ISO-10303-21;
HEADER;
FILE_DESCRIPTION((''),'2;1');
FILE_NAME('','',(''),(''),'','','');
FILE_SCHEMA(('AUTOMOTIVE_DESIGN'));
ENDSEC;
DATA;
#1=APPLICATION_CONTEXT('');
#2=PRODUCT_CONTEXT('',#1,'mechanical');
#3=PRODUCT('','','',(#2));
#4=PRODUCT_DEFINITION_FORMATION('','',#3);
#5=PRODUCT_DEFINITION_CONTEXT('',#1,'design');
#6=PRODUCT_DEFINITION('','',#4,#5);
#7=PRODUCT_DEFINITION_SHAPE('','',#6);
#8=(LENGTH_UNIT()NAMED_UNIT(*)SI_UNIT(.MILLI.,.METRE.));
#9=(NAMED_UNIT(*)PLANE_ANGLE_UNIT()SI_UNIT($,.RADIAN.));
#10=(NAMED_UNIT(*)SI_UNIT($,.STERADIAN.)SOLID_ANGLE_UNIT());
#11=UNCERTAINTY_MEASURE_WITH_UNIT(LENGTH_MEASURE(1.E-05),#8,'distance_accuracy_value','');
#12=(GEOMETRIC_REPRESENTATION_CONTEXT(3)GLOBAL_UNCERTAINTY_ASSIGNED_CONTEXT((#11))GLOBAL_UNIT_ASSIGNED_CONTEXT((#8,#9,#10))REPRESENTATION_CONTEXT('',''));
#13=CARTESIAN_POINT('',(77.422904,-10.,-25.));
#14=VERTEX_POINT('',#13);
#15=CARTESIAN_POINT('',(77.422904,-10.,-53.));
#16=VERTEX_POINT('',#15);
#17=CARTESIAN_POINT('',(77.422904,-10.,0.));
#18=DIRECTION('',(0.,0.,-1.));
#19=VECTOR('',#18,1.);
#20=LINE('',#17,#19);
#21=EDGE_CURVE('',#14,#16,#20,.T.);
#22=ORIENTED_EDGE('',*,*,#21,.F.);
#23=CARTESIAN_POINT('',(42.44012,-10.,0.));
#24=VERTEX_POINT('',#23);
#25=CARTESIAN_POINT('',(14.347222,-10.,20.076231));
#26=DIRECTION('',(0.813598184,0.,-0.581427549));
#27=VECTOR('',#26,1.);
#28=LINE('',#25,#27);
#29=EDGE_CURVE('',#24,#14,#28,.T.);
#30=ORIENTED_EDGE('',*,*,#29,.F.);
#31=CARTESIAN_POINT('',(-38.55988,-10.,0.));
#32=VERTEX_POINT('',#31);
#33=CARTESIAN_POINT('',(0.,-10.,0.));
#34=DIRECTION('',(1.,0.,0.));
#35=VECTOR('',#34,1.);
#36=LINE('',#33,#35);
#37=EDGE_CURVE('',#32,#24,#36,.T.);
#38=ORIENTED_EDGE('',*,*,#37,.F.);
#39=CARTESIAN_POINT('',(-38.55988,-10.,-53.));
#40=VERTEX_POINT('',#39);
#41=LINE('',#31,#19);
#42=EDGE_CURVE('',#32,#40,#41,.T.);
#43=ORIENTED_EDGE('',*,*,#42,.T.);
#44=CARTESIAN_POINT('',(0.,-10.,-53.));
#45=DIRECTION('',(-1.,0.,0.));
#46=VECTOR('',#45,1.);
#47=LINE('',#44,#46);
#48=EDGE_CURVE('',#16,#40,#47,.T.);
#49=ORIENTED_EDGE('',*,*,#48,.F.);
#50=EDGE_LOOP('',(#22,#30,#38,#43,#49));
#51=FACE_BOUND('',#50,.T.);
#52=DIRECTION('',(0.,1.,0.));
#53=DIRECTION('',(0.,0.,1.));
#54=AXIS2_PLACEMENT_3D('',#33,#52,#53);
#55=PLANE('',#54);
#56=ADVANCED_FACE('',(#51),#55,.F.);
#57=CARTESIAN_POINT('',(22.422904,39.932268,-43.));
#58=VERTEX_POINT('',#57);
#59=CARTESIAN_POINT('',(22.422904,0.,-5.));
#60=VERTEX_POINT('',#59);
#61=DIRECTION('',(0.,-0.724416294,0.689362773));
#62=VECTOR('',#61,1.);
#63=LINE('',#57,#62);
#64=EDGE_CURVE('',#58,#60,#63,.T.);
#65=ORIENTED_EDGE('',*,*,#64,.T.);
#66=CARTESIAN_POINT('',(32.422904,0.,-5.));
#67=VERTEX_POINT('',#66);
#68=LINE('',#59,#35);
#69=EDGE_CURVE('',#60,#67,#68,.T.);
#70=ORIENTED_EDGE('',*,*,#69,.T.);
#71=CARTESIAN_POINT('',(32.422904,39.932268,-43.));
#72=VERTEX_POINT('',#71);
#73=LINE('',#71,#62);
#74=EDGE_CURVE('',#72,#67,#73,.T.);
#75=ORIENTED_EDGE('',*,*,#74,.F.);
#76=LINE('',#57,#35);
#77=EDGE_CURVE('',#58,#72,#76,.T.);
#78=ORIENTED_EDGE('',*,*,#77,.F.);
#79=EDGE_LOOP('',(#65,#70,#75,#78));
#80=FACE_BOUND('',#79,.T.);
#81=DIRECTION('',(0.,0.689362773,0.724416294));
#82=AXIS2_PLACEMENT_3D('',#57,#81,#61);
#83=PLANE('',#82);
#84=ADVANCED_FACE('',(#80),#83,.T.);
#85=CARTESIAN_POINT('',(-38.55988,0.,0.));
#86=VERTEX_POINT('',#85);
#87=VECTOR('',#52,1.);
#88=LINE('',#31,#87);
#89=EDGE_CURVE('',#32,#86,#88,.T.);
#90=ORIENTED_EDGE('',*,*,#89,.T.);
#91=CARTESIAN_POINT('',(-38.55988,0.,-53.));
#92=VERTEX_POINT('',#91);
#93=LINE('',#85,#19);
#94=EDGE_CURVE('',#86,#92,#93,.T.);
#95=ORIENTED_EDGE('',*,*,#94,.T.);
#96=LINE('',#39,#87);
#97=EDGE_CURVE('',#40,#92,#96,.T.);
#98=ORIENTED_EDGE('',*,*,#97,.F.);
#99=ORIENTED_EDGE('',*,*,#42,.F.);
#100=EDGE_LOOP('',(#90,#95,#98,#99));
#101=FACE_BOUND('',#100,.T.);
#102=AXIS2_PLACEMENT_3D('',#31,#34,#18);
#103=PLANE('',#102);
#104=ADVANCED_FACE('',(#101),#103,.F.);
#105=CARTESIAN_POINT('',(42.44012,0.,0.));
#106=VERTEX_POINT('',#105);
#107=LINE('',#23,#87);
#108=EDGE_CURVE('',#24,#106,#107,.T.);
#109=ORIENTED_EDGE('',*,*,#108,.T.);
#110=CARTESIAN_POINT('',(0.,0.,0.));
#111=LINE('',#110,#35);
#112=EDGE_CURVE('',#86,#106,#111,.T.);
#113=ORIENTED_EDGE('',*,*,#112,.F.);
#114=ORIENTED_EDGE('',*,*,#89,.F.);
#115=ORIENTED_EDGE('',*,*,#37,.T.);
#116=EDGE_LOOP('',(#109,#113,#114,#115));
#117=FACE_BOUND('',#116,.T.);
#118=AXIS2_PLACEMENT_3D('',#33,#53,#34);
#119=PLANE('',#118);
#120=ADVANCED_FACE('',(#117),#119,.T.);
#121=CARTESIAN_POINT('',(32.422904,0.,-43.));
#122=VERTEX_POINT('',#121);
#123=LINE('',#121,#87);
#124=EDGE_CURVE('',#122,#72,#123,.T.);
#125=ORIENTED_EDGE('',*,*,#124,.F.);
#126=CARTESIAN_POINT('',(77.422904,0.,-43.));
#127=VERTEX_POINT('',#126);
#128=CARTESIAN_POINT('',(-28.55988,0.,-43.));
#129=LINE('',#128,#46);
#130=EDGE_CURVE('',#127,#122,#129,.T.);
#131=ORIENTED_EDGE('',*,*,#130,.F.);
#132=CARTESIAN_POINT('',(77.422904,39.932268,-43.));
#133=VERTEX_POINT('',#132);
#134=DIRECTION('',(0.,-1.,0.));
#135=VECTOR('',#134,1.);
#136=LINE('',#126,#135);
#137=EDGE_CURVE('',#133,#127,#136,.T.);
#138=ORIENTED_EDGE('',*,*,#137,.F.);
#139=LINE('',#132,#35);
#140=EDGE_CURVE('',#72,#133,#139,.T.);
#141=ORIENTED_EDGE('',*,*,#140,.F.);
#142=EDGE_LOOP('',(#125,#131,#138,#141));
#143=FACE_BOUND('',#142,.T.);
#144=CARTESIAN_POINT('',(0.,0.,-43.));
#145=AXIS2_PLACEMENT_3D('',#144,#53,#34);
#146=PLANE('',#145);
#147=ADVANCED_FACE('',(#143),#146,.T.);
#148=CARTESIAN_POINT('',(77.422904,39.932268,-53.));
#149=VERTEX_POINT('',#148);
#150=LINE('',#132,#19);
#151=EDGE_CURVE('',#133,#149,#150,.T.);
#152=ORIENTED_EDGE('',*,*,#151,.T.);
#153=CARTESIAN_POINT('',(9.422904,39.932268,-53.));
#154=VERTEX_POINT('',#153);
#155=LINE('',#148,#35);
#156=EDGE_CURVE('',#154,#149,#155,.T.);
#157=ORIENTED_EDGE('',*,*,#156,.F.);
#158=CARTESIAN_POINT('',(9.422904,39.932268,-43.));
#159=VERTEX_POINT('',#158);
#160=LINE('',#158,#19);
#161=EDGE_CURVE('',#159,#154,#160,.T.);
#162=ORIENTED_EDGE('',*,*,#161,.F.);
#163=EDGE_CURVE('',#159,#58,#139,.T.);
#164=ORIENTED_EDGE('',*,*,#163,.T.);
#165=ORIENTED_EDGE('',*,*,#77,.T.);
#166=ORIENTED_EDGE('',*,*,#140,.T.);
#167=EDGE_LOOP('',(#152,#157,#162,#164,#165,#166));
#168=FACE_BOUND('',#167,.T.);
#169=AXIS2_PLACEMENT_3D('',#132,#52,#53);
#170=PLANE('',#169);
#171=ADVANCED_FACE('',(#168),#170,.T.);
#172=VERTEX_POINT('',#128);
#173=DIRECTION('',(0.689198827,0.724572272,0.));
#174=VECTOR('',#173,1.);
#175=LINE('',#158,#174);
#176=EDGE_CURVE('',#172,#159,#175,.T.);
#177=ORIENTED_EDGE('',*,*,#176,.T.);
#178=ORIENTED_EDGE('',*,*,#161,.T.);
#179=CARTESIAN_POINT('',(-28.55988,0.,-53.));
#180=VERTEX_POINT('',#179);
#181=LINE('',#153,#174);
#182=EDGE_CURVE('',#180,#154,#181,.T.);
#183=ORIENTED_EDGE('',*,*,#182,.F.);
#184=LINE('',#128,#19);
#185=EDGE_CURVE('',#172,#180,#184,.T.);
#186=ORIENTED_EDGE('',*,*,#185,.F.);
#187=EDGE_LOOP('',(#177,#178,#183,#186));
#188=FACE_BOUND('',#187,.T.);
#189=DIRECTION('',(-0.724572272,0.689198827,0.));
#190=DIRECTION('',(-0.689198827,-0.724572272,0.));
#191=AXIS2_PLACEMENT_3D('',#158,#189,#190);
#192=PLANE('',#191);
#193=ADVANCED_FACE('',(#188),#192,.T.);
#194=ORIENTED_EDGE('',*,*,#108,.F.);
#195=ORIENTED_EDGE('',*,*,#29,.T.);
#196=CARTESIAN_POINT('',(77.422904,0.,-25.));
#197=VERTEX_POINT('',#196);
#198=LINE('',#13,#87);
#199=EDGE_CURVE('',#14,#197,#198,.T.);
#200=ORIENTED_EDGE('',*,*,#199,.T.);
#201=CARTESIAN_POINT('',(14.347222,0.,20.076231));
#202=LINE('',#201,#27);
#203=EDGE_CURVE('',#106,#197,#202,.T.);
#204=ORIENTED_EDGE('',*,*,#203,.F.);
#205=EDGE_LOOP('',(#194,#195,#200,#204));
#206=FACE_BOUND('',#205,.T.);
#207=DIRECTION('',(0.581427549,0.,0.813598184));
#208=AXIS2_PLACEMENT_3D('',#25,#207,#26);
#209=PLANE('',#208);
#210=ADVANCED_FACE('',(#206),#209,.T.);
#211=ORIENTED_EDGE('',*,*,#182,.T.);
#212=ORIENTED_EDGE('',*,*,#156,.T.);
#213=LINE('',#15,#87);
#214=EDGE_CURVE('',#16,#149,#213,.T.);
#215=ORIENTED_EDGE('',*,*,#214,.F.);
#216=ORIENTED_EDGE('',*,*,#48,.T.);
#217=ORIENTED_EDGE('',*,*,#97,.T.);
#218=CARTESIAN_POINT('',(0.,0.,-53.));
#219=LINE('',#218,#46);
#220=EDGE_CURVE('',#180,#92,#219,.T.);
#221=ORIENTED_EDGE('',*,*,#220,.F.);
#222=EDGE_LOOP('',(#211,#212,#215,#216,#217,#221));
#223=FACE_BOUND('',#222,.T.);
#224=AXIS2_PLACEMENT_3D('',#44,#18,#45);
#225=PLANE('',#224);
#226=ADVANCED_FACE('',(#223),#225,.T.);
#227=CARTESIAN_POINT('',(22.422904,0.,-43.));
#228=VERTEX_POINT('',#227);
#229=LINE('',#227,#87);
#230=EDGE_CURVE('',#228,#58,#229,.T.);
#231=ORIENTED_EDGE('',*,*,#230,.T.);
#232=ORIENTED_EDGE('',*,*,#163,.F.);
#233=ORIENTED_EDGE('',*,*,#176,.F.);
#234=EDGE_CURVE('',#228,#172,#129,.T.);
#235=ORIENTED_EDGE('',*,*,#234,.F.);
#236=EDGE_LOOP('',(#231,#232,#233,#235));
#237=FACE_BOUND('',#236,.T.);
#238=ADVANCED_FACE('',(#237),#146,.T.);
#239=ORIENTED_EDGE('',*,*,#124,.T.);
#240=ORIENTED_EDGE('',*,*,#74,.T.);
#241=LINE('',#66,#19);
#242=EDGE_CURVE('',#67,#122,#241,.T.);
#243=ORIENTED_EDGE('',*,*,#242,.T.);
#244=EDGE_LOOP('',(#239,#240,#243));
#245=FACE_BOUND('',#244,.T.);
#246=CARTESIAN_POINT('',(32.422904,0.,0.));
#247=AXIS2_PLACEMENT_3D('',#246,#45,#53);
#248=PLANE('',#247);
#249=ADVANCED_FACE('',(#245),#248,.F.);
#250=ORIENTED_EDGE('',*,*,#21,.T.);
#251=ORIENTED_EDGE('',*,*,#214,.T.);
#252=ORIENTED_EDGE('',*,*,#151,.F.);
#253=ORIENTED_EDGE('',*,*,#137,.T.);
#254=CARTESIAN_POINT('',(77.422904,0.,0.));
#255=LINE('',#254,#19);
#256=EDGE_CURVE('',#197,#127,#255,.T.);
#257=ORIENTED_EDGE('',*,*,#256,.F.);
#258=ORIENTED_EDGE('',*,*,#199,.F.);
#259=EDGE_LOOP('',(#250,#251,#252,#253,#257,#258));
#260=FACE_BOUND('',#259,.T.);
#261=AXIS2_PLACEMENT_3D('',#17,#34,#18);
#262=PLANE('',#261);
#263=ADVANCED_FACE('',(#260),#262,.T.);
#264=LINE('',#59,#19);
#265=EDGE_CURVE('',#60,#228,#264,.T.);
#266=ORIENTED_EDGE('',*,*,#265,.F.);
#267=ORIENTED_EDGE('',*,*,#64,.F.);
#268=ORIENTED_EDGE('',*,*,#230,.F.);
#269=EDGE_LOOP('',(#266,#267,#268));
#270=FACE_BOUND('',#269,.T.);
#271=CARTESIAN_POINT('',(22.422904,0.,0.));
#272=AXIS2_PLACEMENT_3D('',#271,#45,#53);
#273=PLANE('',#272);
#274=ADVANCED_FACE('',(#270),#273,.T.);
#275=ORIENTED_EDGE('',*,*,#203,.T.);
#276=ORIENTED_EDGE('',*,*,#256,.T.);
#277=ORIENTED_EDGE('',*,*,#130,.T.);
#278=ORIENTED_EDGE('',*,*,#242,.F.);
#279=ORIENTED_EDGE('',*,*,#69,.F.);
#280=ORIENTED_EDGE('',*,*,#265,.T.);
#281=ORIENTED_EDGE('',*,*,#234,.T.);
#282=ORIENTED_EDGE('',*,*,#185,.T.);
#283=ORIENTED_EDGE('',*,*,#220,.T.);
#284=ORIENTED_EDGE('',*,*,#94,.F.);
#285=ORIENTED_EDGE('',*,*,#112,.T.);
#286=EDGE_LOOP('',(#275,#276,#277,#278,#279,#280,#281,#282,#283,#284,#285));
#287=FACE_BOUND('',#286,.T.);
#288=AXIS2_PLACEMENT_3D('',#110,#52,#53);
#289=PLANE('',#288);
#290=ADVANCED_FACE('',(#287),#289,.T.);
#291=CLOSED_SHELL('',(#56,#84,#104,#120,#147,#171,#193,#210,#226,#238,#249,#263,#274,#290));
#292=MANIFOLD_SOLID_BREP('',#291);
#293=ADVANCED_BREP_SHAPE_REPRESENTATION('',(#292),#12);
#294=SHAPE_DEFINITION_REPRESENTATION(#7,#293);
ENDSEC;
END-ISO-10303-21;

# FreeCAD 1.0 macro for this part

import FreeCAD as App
import Part
import Sketcher
Q = App.Units.Quantity


def add_polygon(sketch, points):
    """Adds a closed chain of lines whose ends are joined by coincident constraints."""
    first, n = sketch.GeometryCount, len(points)
    for a, b in zip(points, points[1:] + points[:1]):
        sketch.addGeometry(Part.LineSegment(App.Vector(*a, 0), App.Vector(*b, 0)), False)
    for i in range(n):
        sketch.addConstraint(Sketcher.Constraint("Coincident", first + i, 2, first + (i + 1) % n, 1))

doc = App.newDocument("Part")
params = doc.addObject("Spreadsheet::Sheet", "Params")
for row, (alias, value) in enumerate([
    ("sketch1_width", "81 mm"),
    ("sketch1_height", "28 mm"),
    ("sketch1_height2", "53 mm"),
    ("pad1_length", "10 mm"),
    ("sketch2_width", "68 mm"),
    ("pad2_length", "10 mm"),
    ("sketch3_height", "38 mm"),
    ("pad3_length", "10 mm"),
], start=1):
    params.set(f"A{row}", alias)
    params.set(f"B{row}", "=" + value)
    params.setAlias(f"B{row}", alias)

body = doc.addObject("PartDesign::Body", "Body")

# Sketch on XZ plane
sketch1 = doc.addObject("Sketcher::SketchObject", "Sketch")
body.addObject(sketch1)
sketch1.AttachmentSupport = (doc.XZ_Plane, [""])
sketch1.MapMode = "FlatFace"
add_polygon(sketch1, [(77, -25), (77, -53), (-39, -53), (-39, 0), (42, 0)])  # lines 0-4
sketch1.addConstraint([
    Sketcher.Constraint("Vertical", 0),
    Sketcher.Constraint("Horizontal", 1),
    Sketcher.Constraint("Vertical", 2),
    Sketcher.Constraint("Horizontal", 3),
    Sketcher.Constraint("PointOnObject", 2, 2, -1),
    Sketcher.Constraint("DistanceX", 3, 1, 3, 2, Q("81 mm")),
    Sketcher.Constraint("DistanceY", 0, 2, 0, 1, Q("28 mm")),
    Sketcher.Constraint("DistanceY", 2, 1, 2, 2, Q("53 mm")),
    Sketcher.Constraint("Distance", 4, Q("42.997619 mm")),
    Sketcher.Constraint("DistanceX", 1, 2, -1, 1, Q("38.55988 mm")),
])
sketch1.setExpression("Constraints[10]", "Params.sketch1_width")
sketch1.setExpression("Constraints[11]", "Params.sketch1_height")
sketch1.setExpression("Constraints[12]", "Params.sketch1_height2")
pad1 = doc.addObject("PartDesign::Pad", "Pad")
body.addObject(pad1)
pad1.Profile = sketch1
pad1.setExpression("Length", "Params.pad1_length")

# Sketch on XY plane
sketch2 = doc.addObject("Sketcher::SketchObject", "Sketch001")
body.addObject(sketch2)
sketch2.AttachmentSupport = (doc.XY_Plane, [""])
sketch2.MapMode = "FlatFace"
sketch2.AttachmentOffset = App.Placement(App.Vector(0, 0, -53), App.Rotation())
add_polygon(sketch2, [(77, 40), (77, 0), (-29, 0), (9, 40)])  # lines 0-3
sketch2.addConstraint([
    Sketcher.Constraint("Vertical", 0),
    Sketcher.Constraint("Horizontal", 1),
    Sketcher.Constraint("Horizontal", 3),
    Sketcher.Constraint("PointOnObject", 0, 2, -1),
    Sketcher.Constraint("DistanceX", 3, 1, 3, 2, Q("68 mm")),
    Sketcher.Constraint("DistanceY", 0, 2, 0, 1, Q("39.932268 mm")),
    Sketcher.Constraint("DistanceX", 1, 2, 1, 1, Q("105.982784 mm")),
    Sketcher.Constraint("DistanceX", 1, 2, -1, 1, Q("28.55988 mm")),
])
sketch2.setExpression("Constraints[8]", "Params.sketch2_width")
pad2 = doc.addObject("PartDesign::Pad", "Pad001")
body.addObject(pad2)
pad2.Profile = sketch2
pad2.setExpression("Length", "Params.pad2_length")

# Sketch on YZ plane
sketch3 = doc.addObject("Sketcher::SketchObject", "Sketch002")
body.addObject(sketch3)
sketch3.AttachmentSupport = (doc.YZ_Plane, [""])
sketch3.MapMode = "FlatFace"
sketch3.AttachmentOffset = App.Placement(App.Vector(0, 0, 32.422904), App.Rotation())
add_polygon(sketch3, [(40, -43), (0, -5), (0, -43)])  # lines 0-2
sketch3.addConstraint([
    Sketcher.Constraint("Vertical", 1),
    Sketcher.Constraint("Horizontal", 2),
    Sketcher.Constraint("PointOnObject", 0, 2, -2),
    Sketcher.Constraint("DistanceY", 1, 2, 1, 1, Q("38 mm")),
    Sketcher.Constraint("DistanceY", 0, 2, -1, 1, Q("5 mm")),
    Sketcher.Constraint("DistanceX", 2, 1, 2, 2, Q("39.932268 mm")),
])
sketch3.setExpression("Constraints[6]", "Params.sketch3_height")
pad3 = doc.addObject("PartDesign::Pad", "Pad002")
body.addObject(pad3)
pad3.Profile = sketch3
pad3.setExpression("Length", "Params.pad3_length")
pad3.Reversed = True

doc.recompute()
